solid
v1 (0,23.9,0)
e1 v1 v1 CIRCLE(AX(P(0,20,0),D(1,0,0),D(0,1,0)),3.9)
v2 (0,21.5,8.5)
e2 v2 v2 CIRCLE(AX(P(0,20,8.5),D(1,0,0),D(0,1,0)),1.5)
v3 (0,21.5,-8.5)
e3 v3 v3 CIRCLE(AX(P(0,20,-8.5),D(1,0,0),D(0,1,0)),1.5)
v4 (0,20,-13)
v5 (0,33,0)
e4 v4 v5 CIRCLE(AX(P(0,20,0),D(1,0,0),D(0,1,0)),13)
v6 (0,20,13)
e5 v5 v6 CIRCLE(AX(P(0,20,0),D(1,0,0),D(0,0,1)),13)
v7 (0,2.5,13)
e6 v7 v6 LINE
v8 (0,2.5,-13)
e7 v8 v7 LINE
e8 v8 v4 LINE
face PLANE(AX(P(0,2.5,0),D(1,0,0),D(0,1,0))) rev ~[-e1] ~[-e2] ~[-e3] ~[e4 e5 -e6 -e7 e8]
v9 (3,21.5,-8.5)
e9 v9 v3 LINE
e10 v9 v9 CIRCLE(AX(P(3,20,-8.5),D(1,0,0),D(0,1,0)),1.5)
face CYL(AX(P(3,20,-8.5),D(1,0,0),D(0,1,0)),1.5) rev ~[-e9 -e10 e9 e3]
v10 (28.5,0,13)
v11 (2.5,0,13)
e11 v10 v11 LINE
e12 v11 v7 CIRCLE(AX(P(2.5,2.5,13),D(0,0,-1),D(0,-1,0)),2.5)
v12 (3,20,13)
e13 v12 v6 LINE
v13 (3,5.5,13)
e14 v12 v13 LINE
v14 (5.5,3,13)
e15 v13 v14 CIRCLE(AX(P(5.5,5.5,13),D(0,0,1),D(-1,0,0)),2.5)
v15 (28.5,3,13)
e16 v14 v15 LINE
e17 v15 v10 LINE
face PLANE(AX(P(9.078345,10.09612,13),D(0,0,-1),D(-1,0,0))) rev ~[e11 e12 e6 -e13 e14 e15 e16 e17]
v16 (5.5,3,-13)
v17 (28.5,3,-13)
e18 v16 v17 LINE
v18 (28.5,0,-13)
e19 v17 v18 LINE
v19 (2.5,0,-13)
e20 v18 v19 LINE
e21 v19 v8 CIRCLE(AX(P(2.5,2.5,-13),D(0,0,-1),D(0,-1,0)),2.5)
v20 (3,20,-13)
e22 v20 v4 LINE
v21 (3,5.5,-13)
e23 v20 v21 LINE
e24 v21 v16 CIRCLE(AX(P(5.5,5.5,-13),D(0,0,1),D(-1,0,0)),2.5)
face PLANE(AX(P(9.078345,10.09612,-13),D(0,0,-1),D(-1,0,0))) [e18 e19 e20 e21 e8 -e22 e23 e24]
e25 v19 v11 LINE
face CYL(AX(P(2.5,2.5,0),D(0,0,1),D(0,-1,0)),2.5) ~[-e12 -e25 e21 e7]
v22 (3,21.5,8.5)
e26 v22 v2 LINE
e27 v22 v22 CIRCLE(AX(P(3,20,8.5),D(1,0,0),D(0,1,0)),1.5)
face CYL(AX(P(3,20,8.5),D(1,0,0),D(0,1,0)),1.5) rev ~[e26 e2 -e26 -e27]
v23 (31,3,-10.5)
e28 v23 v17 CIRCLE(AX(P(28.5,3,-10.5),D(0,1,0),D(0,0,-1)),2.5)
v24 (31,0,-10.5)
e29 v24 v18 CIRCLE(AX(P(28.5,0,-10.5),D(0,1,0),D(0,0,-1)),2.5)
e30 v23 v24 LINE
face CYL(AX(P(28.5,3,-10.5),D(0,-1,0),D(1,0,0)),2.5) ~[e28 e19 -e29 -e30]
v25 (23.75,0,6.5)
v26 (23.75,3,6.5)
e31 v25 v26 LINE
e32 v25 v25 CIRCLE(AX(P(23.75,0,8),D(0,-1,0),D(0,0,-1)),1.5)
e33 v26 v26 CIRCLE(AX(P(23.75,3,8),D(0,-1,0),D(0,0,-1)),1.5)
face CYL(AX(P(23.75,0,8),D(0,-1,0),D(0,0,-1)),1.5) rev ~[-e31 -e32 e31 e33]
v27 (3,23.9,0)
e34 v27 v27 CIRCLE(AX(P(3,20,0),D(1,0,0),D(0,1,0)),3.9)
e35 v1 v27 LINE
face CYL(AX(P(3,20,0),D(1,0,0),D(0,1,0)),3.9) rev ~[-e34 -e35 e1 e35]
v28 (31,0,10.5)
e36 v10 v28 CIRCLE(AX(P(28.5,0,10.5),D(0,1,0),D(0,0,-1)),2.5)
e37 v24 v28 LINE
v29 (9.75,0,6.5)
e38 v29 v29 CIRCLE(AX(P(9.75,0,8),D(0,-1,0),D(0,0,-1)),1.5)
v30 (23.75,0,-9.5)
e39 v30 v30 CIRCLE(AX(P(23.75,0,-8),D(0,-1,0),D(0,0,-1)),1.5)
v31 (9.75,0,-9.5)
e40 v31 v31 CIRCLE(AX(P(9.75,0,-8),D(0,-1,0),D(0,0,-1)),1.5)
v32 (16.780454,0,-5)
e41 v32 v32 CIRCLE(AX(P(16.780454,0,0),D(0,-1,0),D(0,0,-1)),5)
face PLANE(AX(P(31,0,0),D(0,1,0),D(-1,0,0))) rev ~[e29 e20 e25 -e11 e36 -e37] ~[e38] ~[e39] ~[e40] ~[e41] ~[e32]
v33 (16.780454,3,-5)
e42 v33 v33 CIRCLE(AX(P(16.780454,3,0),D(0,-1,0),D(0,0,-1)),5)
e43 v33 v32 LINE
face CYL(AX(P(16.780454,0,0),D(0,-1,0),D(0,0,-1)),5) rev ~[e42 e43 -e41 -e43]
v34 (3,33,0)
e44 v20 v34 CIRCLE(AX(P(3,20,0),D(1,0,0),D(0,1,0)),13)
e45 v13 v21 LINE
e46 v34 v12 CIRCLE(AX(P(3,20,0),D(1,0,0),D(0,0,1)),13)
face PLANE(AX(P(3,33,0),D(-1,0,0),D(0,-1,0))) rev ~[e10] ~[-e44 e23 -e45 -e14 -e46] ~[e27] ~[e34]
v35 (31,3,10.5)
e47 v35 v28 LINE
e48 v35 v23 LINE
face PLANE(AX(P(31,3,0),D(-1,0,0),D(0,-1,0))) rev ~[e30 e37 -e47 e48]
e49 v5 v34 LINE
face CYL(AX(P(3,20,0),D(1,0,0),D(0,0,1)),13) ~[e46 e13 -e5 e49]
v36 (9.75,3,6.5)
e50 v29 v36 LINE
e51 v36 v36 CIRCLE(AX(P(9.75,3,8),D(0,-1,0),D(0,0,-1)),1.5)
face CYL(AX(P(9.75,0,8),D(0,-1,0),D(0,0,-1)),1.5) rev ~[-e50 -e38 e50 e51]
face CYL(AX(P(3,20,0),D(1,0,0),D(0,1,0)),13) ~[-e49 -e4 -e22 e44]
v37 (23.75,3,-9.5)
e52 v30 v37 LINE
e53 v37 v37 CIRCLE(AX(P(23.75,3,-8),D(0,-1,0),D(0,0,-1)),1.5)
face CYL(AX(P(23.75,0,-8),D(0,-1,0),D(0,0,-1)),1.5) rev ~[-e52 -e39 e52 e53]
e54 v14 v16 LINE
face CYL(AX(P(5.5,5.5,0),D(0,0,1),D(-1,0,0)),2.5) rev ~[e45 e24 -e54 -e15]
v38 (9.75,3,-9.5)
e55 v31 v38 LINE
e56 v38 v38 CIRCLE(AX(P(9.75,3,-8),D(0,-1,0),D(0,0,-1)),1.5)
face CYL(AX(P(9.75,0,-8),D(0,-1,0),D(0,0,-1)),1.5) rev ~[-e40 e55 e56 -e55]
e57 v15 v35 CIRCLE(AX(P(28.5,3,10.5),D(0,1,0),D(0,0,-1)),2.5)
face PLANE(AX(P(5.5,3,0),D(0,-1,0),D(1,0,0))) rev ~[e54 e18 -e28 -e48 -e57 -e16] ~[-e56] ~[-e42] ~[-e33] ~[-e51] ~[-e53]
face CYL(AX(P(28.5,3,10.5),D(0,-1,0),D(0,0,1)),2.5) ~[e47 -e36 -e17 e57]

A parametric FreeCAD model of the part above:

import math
import FreeCAD as App
import Part
import Sketcher

V = App.Vector
Q = App.Units.Quantity


def edges_at(feature, points):
    """Names of the edges that pass closest to the given points."""
    edges = feature.Shape.Edges
    near = lambda p: min(range(len(edges)), key=lambda i: edges[i].distToShape(Part.Vertex(*p))[0])
    return sorted({f"Edge{near(p) + 1}" for p in points})

doc = App.newDocument("Part")
body = doc.addObject("PartDesign::Body", "Body")

# Sketch on XY plane
sketch1 = body.newObject("Sketcher::SketchObject", "Sketch")
sketch1.AttachmentSupport = (doc.getObject("XY_Plane"), [""])
sketch1.MapMode = "FlatFace"
sketch1.addGeometry(Part.LineSegment(V(0, 33, 0), V(0, 2.5, 0)), False)
sketch1.addGeometry(Part.ArcOfCircle(Part.Circle(V(2.5, 2.5, 0), V(0, 0, 1), 2.5), math.radians(180), math.radians(270)), False)
sketch1.addGeometry(Part.LineSegment(V(2.5, 0, 0), V(31, 0, 0)), False)
sketch1.addGeometry(Part.LineSegment(V(31, 0, 0), V(31, 3, 0)), False)
sketch1.addGeometry(Part.LineSegment(V(31, 3, 0), V(5.5, 3, 0)), False)
sketch1.addGeometry(Part.ArcOfCircle(Part.Circle(V(5.5, 5.5, 0), V(0, 0, 1), 2.5), math.radians(180), math.radians(270)), False)
sketch1.addGeometry(Part.LineSegment(V(3, 5.5, 0), V(3, 33, 0)), False)
sketch1.addGeometry(Part.LineSegment(V(3, 33, 0), V(0, 33, 0)), False)
sketch1.addConstraint(Sketcher.Constraint("Tangent", 0, 2, 1, 1))
sketch1.addConstraint(Sketcher.Constraint("Tangent", 1, 2, 2, 1))
sketch1.addConstraint(Sketcher.Constraint("Coincident", 2, 2, 3, 1))
sketch1.addConstraint(Sketcher.Constraint("Coincident", 3, 2, 4, 1))
sketch1.addConstraint(Sketcher.Constraint("Tangent", 4, 2, 5, 2))
sketch1.addConstraint(Sketcher.Constraint("Tangent", 5, 1, 6, 1))
sketch1.addConstraint(Sketcher.Constraint("Coincident", 6, 2, 7, 1))
sketch1.addConstraint(Sketcher.Constraint("Coincident", 7, 2, 0, 1))
sketch1.addConstraint(Sketcher.Constraint("Vertical", 0))
sketch1.addConstraint(Sketcher.Constraint("Horizontal", 2))
sketch1.addConstraint(Sketcher.Constraint("Vertical", 3))
sketch1.addConstraint(Sketcher.Constraint("Horizontal", 4))
sketch1.addConstraint(Sketcher.Constraint("Vertical", 6))
sketch1.addConstraint(Sketcher.Constraint("Horizontal", 7))
sketch1.addConstraint(Sketcher.Constraint("Equal", 1, 5))
sketch1.addConstraint(Sketcher.Constraint("PointOnObject", 0, 2, -2))
sketch1.addConstraint(Sketcher.Constraint("PointOnObject", 1, 2, -1))
sketch1.addConstraint(Sketcher.Constraint("Equal", 7, 3))
sketch1.addConstraint(Sketcher.Constraint("Radius", 1, Q("2.5 mm")))
sketch1.addConstraint(Sketcher.Constraint("DistanceX", 7, 2, 7, 1, Q("3 mm")))
sketch1.addConstraint(Sketcher.Constraint("DistanceX", 2, 1, 2, 2, Q("28.5 mm")))
sketch1.addConstraint(Sketcher.Constraint("DistanceY", 0, 2, 0, 1, Q("30.5 mm")))
pad1 = body.newObject("PartDesign::Pad", "Pad")
pad1.Profile = sketch1
pad1.Length = 26
pad1.Midplane = True
doc.recompute()

fillet = body.newObject("PartDesign::Fillet", "Fillet")
fillet.Base = (pad1, edges_at(pad1, [(31, 1.5, 13), (31, 1.5, -13)]))
fillet.Radius = 2.5

# Sketch on YZ plane
sketch2 = body.newObject("Sketcher::SketchObject", "Sketch001")
sketch2.AttachmentSupport = (doc.getObject("YZ_Plane"), [""])
sketch2.MapMode = "FlatFace"
sketch2.AttachmentOffset = App.Placement(V(0, 0, 3), App.Rotation())
sketch2.addGeometry(Part.LineSegment(V(33, 13, 0), V(20, 13, 0)), False)
sketch2.addGeometry(Part.ArcOfCircle(Part.Circle(V(20, 0, 0), V(0, 0, 1), 13), math.radians(0), math.radians(90)), False)
sketch2.addGeometry(Part.LineSegment(V(33, 0, 0), V(33, 13, 0)), False)
sketch2.addGeometry(Part.LineSegment(V(33, -13, 0), V(33, 0, 0)), False)
sketch2.addGeometry(Part.ArcOfCircle(Part.Circle(V(20, 0, 0), V(0, 0, 1), 13), math.radians(-90), math.radians(0)), False)
sketch2.addGeometry(Part.LineSegment(V(20, -13, 0), V(33, -13, 0)), False)
sketch2.addConstraint(Sketcher.Constraint("Tangent", 0, 2, 1, 2))
sketch2.addConstraint(Sketcher.Constraint("Tangent", 1, 1, 2, 1))
sketch2.addConstraint(Sketcher.Constraint("Coincident", 2, 2, 0, 1))
sketch2.addConstraint(Sketcher.Constraint("Tangent", 3, 2, 4, 2))
sketch2.addConstraint(Sketcher.Constraint("Tangent", 4, 1, 5, 1))
sketch2.addConstraint(Sketcher.Constraint("Coincident", 5, 2, 3, 1))
sketch2.addConstraint(Sketcher.Constraint("Horizontal", 0))
sketch2.addConstraint(Sketcher.Constraint("Vertical", 2))
sketch2.addConstraint(Sketcher.Constraint("Vertical", 3))
sketch2.addConstraint(Sketcher.Constraint("Horizontal", 5))
sketch2.addConstraint(Sketcher.Constraint("Coincident", 4, 3, 1, 3))
sketch2.addConstraint(Sketcher.Constraint("Equal", 1, 4))
sketch2.addConstraint(Sketcher.Constraint("PointOnObject", 1, 3, -1))
sketch2.addConstraint(Sketcher.Constraint("Radius", 1, Q("13 mm")))
sketch2.addConstraint(Sketcher.Constraint("DistanceX", -1, 1, 1, 3, Q("20 mm")))
pocket1 = body.newObject("PartDesign::Pocket", "Pocket")
pocket1.Profile = sketch2
pocket1.Length = 26
pocket1.Midplane = True

# Sketch on YZ plane
sketch3 = body.newObject("Sketcher::SketchObject", "Sketch002")
sketch3.AttachmentSupport = (doc.getObject("YZ_Plane"), [""])
sketch3.MapMode = "FlatFace"
sketch3.AttachmentOffset = App.Placement(V(0, 0, 3), App.Rotation())
sketch3.addGeometry(Part.Circle(V(20, 8.5, 0), V(0, 0, 1), 1.5), False)
sketch3.addGeometry(Part.Circle(V(20, -8.5, 0), V(0, 0, 1), 1.5), False)
sketch3.addGeometry(Part.Circle(V(20, 0, 0), V(0, 0, 1), 3.9), False)
sketch3.addConstraint(Sketcher.Constraint("Equal", 0, 1))
sketch3.addConstraint(Sketcher.Constraint("Symmetric", 0, 3, 1, 3, -1))
sketch3.addConstraint(Sketcher.Constraint("PointOnObject", 2, 3, -1))
sketch3.addConstraint(Sketcher.Constraint("Vertical", 1, 3, 2, 3))
sketch3.addConstraint(Sketcher.Constraint("Diameter", 0, Q("3 mm")))
sketch3.addConstraint(Sketcher.Constraint("Diameter", 2, Q("7.8 mm")))
sketch3.addConstraint(Sketcher.Constraint("DistanceX", -1, 1, 0, 3, Q("20 mm")))
sketch3.addConstraint(Sketcher.Constraint("DistanceY", 1, 3, 0, 3, Q("17 mm")))
pocket2 = body.newObject("PartDesign::Pocket", "Pocket001")
pocket2.Profile = sketch3
pocket2.Length = 26
pocket2.Midplane = True

# Sketch on XZ plane
sketch4 = body.newObject("Sketcher::SketchObject", "Sketch003")
sketch4.AttachmentSupport = (doc.getObject("XZ_Plane"), [""])
sketch4.MapMode = "FlatFace"
sketch4.addGeometry(Part.Circle(V(23.8, 8, 0), V(0, 0, 1), 1.5), False)
sketch4.addGeometry(Part.Circle(V(23.8, -8, 0), V(0, 0, 1), 1.5), False)
sketch4.addGeometry(Part.Circle(V(9.8, 8, 0), V(0, 0, 1), 1.5), False)
sketch4.addGeometry(Part.Circle(V(9.8, -8, 0), V(0, 0, 1), 1.5), False)
sketch4.addGeometry(Part.Circle(V(16.8, 0, 0), V(0, 0, 1), 5), False)
sketch4.addConstraint(Sketcher.Constraint("Equal", 0, 1))
sketch4.addConstraint(Sketcher.Constraint("Equal", 1, 2))
sketch4.addConstraint(Sketcher.Constraint("Equal", 2, 3))
sketch4.addConstraint(Sketcher.Constraint("Symmetric", 0, 3, 1, 3, -1))
sketch4.addConstraint(Sketcher.Constraint("Symmetric", 2, 3, 3, 3, -1))
sketch4.addConstraint(Sketcher.Constraint("PointOnObject", 4, 3, -1))
sketch4.addConstraint(Sketcher.Constraint("Horizontal", 0, 3, 2, 3))
sketch4.addConstraint(Sketcher.Constraint("Diameter", 0, Q("3 mm")))
sketch4.addConstraint(Sketcher.Constraint("Diameter", 4, Q("10 mm")))
sketch4.addConstraint(Sketcher.Constraint("DistanceY", -1, 1, 0, 3, Q("8 mm")))
sketch4.addConstraint(Sketcher.Constraint("DistanceX", 2, 3, 0, 3, Q("14 mm")))
sketch4.addConstraint(Sketcher.Constraint("DistanceX", -1, 1, 0, 3, Q("23.75 mm")))
sketch4.addConstraint(Sketcher.Constraint("DistanceX", -1, 1, 4, 3, Q("16.780454 mm")))
pocket3 = body.newObject("PartDesign::Pocket", "Pocket002")
pocket3.Profile = sketch4
pocket3.Length = 26
pocket3.Midplane = True

doc.recompute()
